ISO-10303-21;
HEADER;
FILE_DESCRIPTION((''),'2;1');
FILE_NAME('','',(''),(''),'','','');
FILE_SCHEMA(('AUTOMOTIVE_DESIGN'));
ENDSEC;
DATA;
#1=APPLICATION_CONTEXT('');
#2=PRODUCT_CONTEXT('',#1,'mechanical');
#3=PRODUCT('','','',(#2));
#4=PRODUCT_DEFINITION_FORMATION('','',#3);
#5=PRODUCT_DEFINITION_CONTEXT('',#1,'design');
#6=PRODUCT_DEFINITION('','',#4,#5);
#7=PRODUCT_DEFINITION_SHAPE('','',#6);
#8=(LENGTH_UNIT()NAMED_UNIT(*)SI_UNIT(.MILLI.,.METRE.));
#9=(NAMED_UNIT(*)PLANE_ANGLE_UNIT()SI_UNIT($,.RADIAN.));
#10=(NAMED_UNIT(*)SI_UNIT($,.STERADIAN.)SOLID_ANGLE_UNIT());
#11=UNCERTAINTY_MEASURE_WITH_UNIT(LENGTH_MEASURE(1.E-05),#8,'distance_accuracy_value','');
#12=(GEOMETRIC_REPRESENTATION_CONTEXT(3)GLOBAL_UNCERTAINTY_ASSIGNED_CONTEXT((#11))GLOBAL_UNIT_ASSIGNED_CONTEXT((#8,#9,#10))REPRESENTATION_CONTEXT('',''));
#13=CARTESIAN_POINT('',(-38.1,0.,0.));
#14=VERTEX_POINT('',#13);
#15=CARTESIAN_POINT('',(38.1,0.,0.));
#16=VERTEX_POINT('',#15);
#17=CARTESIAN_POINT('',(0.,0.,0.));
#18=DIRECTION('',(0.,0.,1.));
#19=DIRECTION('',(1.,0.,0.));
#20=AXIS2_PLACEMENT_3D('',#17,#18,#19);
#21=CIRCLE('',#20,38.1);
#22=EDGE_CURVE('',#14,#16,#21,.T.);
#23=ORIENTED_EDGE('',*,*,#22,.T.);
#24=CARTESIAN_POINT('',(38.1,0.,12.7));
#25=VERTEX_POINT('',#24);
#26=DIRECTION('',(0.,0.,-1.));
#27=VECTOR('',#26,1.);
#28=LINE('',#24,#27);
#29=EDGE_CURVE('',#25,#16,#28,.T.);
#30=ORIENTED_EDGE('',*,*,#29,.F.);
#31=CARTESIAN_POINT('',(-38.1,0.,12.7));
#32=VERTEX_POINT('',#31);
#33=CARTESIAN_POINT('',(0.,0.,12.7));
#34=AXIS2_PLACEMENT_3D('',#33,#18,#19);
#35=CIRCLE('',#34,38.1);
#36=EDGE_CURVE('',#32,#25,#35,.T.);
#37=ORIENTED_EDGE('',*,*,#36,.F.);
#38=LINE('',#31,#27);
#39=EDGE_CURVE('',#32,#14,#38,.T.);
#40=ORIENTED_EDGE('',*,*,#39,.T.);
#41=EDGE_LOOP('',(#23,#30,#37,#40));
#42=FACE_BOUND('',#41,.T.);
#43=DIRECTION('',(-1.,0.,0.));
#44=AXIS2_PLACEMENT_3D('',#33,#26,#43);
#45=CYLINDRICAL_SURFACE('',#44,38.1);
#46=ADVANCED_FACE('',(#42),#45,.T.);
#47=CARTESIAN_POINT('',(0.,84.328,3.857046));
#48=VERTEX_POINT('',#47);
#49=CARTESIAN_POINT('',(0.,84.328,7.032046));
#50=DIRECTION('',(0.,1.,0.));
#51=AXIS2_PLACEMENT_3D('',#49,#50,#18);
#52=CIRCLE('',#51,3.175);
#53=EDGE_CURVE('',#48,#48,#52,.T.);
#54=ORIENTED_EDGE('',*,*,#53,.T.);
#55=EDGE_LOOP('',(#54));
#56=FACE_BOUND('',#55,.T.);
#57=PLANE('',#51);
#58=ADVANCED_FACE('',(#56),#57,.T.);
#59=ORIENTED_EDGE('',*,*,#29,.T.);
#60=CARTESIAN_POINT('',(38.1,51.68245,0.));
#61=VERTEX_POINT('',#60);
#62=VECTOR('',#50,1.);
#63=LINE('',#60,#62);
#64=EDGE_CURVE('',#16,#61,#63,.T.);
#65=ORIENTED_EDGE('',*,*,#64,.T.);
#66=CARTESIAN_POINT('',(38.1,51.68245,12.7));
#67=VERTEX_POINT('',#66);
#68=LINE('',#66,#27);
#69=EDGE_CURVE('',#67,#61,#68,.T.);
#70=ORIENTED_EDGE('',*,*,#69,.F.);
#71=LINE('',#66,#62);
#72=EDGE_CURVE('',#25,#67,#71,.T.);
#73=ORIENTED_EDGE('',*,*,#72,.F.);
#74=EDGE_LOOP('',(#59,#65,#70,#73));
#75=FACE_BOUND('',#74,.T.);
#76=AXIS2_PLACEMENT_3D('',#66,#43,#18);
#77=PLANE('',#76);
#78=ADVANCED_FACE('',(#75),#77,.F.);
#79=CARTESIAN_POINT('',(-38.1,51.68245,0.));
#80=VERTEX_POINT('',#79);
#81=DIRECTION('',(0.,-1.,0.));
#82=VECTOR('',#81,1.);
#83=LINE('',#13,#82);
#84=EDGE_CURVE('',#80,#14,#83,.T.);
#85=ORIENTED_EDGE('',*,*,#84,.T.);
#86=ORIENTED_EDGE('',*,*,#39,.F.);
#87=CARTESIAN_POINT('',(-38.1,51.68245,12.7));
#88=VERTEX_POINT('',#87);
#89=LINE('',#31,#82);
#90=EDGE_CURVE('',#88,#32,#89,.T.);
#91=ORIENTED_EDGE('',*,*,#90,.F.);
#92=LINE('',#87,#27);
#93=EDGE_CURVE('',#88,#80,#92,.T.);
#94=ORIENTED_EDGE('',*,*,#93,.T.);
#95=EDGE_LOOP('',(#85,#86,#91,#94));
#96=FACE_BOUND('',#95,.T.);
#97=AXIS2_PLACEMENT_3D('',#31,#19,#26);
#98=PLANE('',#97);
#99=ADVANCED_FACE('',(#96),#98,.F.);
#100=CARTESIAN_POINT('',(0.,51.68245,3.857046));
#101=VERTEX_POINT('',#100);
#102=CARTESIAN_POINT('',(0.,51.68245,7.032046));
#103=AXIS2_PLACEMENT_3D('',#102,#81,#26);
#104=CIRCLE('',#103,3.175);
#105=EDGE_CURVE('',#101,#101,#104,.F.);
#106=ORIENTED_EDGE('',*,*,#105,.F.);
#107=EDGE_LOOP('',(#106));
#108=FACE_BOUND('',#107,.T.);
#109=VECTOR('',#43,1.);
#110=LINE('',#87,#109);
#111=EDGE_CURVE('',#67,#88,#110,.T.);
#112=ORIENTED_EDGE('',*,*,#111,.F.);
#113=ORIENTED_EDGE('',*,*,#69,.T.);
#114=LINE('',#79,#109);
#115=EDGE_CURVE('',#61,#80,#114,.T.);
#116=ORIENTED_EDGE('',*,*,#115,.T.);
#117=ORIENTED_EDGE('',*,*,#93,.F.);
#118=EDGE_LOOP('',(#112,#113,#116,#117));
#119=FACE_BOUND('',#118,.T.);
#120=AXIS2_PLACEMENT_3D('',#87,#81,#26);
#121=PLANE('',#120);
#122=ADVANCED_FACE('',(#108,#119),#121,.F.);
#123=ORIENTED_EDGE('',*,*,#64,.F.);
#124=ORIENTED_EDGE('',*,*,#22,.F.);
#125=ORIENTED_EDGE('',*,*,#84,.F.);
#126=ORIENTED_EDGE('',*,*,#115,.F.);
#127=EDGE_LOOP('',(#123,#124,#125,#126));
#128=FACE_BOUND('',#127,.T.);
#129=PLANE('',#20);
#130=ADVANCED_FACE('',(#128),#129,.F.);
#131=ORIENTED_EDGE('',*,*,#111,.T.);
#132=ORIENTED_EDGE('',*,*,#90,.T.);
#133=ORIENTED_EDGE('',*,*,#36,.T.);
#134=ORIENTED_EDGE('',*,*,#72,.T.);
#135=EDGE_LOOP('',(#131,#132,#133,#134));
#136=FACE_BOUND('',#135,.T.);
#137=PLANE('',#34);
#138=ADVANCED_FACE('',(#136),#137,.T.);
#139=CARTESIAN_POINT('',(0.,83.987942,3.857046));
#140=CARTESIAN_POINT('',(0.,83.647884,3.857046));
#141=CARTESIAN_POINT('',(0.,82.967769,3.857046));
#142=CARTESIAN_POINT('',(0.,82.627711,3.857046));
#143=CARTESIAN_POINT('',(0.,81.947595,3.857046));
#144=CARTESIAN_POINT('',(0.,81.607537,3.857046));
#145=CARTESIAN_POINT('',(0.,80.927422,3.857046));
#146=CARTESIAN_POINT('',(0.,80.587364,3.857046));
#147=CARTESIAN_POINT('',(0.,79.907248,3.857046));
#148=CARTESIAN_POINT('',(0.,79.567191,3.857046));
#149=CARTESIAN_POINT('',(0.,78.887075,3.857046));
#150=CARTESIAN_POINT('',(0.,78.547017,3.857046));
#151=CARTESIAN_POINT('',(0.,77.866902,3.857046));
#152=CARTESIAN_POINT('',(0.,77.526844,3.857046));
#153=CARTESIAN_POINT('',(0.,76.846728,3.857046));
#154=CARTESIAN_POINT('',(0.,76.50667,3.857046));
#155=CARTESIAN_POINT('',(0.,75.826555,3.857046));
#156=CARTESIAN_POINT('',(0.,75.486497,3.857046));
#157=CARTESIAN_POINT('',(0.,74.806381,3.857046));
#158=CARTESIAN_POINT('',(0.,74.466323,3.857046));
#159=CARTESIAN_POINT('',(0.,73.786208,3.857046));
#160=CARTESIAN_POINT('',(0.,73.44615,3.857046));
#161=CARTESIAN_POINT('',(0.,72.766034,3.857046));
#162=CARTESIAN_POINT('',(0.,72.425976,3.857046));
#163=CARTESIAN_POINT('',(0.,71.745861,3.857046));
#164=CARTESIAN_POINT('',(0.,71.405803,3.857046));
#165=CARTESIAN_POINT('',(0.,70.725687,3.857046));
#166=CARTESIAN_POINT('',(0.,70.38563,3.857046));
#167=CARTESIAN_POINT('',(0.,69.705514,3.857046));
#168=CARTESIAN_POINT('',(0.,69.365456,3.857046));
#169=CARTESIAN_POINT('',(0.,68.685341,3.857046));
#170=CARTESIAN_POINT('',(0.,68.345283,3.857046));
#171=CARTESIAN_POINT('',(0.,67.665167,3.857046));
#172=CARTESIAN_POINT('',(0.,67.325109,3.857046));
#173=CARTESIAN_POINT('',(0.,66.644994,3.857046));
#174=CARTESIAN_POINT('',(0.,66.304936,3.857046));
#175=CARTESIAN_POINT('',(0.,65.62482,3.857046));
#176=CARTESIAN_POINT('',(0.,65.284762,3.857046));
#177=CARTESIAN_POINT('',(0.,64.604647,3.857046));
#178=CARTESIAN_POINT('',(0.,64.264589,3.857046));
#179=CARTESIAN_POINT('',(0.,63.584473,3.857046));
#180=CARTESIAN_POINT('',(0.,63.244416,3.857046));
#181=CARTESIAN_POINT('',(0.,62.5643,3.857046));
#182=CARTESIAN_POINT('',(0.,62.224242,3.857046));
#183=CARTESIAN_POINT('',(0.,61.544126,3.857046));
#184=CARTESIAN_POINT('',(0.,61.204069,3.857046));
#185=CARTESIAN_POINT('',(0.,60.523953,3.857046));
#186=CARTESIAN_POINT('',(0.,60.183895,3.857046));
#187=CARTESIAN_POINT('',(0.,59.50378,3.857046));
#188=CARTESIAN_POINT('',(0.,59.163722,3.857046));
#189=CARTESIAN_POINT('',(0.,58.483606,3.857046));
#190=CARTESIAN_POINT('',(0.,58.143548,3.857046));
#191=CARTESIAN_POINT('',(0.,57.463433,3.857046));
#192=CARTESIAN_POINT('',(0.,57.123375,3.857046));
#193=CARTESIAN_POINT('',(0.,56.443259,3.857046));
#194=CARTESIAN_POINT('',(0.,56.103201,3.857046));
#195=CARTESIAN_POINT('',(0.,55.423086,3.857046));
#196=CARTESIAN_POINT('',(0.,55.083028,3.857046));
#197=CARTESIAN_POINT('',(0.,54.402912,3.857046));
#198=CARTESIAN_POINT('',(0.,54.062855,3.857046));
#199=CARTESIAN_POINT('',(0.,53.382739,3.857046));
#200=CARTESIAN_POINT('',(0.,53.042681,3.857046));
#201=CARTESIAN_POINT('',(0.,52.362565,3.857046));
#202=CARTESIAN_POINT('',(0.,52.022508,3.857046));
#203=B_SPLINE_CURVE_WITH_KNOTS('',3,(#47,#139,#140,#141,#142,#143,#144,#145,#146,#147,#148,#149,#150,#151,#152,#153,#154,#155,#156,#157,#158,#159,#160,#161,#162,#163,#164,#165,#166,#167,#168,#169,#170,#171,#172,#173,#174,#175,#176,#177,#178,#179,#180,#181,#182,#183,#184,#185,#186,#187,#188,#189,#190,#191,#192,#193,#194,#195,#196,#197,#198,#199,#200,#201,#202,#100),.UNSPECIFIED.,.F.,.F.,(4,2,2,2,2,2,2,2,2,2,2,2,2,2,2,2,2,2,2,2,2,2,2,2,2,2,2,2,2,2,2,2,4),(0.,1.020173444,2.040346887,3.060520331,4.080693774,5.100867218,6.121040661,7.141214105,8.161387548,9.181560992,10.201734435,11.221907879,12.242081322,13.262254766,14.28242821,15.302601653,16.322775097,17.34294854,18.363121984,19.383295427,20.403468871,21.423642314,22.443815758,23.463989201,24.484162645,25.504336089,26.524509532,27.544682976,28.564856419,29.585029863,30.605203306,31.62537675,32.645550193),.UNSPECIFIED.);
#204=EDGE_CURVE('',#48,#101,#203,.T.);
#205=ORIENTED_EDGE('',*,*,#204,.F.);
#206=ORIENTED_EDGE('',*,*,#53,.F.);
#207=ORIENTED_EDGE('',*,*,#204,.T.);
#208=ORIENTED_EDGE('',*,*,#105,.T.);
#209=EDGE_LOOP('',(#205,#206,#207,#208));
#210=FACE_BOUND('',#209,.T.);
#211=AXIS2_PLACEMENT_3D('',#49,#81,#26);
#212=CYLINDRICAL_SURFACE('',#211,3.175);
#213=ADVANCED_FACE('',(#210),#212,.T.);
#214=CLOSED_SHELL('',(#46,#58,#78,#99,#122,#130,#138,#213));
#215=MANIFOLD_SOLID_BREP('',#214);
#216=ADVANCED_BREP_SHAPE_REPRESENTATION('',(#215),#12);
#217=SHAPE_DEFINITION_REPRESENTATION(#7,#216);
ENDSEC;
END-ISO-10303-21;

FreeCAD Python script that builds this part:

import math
import FreeCAD as App
import Part
import Sketcher

V = App.Vector
Q = App.Units.Quantity

doc = App.newDocument("Part")
body = doc.addObject("PartDesign::Body", "Body")

# Sketch on XY plane
sketch1 = body.newObject("Sketcher::SketchObject", "Sketch")
sketch1.AttachmentSupport = (doc.getObject("XY_Plane"), [""])
sketch1.MapMode = "FlatFace"
sketch1.addGeometry(Part.LineSegment(V(-38.1, 51.68245, 0), V(-38.1, 0, 0)), False)
sketch1.addGeometry(Part.ArcOfCircle(Part.Circle(V(0, 0, 0), V(0, 0, 1), 38.1), math.radians(180), math.radians(360)), False)
sketch1.addGeometry(Part.LineSegment(V(38.1, 0, 0), V(38.1, 51.68245, 0)), False)
sketch1.addGeometry(Part.LineSegment(V(38.1, 51.68245, 0), V(-38.1, 51.68245, 0)), False)
sketch1.addConstraint(Sketcher.Constraint("Tangent", 0, 2, 1, 1))
sketch1.addConstraint(Sketcher.Constraint("Tangent", 1, 2, 2, 1))
sketch1.addConstraint(Sketcher.Constraint("Coincident", 2, 2, 3, 1))
sketch1.addConstraint(Sketcher.Constraint("Coincident", 3, 2, 0, 1))
sketch1.addConstraint(Sketcher.Constraint("Vertical", 0))
sketch1.addConstraint(Sketcher.Constraint("Vertical", 2))
sketch1.addConstraint(Sketcher.Constraint("Horizontal", 3))
sketch1.addConstraint(Sketcher.Constraint("Coincident", 1, 3, -1, 1))
sketch1.addConstraint(Sketcher.Constraint("Radius", 1, Q("1.5 in")))
sketch1.addConstraint(Sketcher.Constraint("DistanceY", 0, 2, 0, 1, Q("51.68245 mm")))
pad1 = body.newObject("PartDesign::Pad", "Pad")
pad1.Profile = sketch1
pad1.Length = Q("0.5 in")

# Sketch on XZ plane
sketch2 = body.newObject("Sketcher::SketchObject", "Sketch001")
sketch2.AttachmentSupport = (doc.getObject("XZ_Plane"), [""])
sketch2.MapMode = "FlatFace"
sketch2.addGeometry(Part.Circle(V(0, 7.032046, 0), V(0, 0, 1), 3.175), False)
sketch2.addConstraint(Sketcher.Constraint("PointOnObject", 0, 3, -2))
sketch2.addConstraint(Sketcher.Constraint("Diameter", 0, Q("0.25 in")))
sketch2.addConstraint(Sketcher.Constraint("DistanceY", -1, 1, 0, 3, Q("7.032046 mm")))
pad2 = body.newObject("PartDesign::Pad", "Pad001")
pad2.Profile = sketch2
pad2.Length = Q("3.32 in")
pad2.Reversed = True

doc.recompute()
